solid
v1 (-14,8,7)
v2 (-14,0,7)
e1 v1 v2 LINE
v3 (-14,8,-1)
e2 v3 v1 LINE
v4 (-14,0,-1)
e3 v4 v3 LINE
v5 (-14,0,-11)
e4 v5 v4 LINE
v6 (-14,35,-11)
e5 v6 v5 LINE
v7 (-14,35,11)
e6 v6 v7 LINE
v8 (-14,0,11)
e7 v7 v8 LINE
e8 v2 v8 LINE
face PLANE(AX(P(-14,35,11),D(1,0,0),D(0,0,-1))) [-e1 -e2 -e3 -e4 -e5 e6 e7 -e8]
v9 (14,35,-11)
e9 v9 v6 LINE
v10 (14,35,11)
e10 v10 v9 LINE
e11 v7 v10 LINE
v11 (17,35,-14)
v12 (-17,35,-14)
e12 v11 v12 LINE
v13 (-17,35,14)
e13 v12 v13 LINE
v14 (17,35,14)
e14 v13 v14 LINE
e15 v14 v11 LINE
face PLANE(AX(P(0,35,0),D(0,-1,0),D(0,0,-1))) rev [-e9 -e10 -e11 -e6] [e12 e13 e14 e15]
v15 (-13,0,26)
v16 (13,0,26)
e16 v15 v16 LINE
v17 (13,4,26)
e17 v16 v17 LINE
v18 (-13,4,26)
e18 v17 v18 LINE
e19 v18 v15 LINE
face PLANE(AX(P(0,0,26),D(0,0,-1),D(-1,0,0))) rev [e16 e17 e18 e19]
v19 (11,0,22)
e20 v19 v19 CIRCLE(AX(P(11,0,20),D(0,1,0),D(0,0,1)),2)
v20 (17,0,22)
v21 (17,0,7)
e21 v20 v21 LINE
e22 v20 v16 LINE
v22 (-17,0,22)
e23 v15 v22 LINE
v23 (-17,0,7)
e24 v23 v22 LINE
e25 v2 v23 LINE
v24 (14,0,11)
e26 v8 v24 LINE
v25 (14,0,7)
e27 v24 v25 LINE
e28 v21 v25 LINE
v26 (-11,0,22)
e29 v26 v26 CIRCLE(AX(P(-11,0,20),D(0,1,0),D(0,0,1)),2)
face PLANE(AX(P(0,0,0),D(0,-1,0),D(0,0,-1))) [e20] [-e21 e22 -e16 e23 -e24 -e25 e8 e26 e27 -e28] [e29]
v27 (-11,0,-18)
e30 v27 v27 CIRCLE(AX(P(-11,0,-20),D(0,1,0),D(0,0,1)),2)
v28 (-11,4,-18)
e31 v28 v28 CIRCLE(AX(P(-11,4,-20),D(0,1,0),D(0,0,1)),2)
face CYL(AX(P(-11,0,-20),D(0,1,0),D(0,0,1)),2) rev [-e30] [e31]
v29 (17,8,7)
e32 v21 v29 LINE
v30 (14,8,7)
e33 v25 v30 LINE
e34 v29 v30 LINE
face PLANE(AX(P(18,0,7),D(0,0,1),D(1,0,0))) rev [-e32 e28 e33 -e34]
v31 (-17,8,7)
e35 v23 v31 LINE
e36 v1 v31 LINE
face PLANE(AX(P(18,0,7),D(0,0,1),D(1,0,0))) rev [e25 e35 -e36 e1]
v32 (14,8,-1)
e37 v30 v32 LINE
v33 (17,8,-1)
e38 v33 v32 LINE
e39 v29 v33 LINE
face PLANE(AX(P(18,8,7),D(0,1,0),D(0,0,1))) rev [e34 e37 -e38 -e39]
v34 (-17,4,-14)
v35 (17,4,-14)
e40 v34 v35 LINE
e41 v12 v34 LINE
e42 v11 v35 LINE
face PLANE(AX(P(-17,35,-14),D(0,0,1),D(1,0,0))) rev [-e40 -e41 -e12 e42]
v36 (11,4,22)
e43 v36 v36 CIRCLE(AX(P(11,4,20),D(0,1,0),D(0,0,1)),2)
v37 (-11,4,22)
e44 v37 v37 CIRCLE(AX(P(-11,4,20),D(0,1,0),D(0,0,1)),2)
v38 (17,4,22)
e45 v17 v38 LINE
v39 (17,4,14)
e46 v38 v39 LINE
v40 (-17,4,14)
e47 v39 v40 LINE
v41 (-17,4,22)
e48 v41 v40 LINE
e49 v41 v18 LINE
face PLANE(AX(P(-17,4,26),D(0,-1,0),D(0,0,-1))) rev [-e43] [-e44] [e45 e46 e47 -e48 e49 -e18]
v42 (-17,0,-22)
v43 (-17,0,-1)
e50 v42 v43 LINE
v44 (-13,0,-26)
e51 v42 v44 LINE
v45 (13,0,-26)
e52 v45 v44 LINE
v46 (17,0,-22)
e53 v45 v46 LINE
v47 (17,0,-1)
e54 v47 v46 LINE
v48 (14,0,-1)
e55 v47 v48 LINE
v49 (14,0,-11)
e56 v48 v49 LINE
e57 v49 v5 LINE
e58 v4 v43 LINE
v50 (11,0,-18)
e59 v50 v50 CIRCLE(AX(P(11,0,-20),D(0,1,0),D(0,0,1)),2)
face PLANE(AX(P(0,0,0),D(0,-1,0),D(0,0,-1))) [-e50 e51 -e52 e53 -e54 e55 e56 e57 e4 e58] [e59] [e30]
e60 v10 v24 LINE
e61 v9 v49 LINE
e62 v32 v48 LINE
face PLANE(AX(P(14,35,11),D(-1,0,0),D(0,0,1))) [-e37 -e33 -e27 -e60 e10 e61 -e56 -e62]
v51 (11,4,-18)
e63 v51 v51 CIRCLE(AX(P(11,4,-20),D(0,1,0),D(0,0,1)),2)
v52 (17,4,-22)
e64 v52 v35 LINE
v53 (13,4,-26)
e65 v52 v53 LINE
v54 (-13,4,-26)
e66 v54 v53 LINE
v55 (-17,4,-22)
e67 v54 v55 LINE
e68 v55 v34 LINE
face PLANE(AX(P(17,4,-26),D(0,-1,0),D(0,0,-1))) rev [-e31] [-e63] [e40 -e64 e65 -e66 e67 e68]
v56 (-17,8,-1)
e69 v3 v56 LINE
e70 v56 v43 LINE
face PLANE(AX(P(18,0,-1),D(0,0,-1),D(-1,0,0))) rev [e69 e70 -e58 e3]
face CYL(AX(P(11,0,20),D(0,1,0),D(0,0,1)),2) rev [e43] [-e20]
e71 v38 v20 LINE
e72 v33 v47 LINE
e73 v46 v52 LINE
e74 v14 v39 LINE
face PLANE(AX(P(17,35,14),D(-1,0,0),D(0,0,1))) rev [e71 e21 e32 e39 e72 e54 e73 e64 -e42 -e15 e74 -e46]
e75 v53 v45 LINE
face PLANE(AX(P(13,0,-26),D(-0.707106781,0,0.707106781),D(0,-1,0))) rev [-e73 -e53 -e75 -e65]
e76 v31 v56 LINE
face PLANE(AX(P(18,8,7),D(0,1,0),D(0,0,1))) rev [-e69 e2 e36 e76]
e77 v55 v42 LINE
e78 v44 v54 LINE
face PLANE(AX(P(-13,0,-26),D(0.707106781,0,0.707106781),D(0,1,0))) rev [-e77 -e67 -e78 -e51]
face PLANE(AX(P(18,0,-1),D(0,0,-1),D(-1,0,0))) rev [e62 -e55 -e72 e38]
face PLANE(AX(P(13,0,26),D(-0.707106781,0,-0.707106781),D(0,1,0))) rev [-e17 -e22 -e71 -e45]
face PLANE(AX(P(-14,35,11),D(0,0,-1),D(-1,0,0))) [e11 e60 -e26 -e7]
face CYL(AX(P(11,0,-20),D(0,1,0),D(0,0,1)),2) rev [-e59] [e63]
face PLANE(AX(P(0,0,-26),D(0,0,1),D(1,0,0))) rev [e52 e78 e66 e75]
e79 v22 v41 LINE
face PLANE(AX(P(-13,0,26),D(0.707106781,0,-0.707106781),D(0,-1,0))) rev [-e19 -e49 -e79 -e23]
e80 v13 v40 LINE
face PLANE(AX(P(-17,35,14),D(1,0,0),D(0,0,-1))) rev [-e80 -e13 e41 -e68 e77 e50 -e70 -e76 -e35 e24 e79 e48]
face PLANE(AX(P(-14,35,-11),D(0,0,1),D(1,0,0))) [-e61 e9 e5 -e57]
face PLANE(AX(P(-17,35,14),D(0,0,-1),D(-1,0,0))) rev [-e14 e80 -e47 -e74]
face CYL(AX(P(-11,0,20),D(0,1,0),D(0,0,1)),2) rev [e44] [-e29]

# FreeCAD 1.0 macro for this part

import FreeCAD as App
import Part
import Sketcher

V = App.Vector
Q = App.Units.Quantity


def edges_at(feature, points):
    """Names of the edges that pass closest to the given points."""
    edges = feature.Shape.Edges
    near = lambda p: min(range(len(edges)), key=lambda i: edges[i].distToShape(Part.Vertex(*p))[0])
    return sorted({f"Edge{near(p) + 1}" for p in points})

doc = App.newDocument("Part")
body = doc.addObject("PartDesign::Body", "Body")

# Sketch on XZ plane
sketch1 = body.newObject("Sketcher::SketchObject", "Sketch")
sketch1.AttachmentSupport = (doc.getObject("XZ_Plane"), [""])
sketch1.MapMode = "FlatFace"
sketch1.addGeometry(Part.LineSegment(V(-17, -14, 0), V(-17, 14, 0)), False)
sketch1.addGeometry(Part.LineSegment(V(-17, 14, 0), V(17, 14, 0)), False)
sketch1.addGeometry(Part.LineSegment(V(17, 14, 0), V(17, -14, 0)), False)
sketch1.addGeometry(Part.LineSegment(V(17, -14, 0), V(-17, -14, 0)), False)
sketch1.addGeometry(Part.LineSegment(V(14, 11, 0), V(-14, 11, 0)), False)
sketch1.addGeometry(Part.LineSegment(V(-14, 11, 0), V(-14, -11, 0)), False)
sketch1.addGeometry(Part.LineSegment(V(-14, -11, 0), V(14, -11, 0)), False)
sketch1.addGeometry(Part.LineSegment(V(14, -11, 0), V(14, 11, 0)), False)
sketch1.addConstraint(Sketcher.Constraint("Coincident", 0, 2, 1, 1))
sketch1.addConstraint(Sketcher.Constraint("Coincident", 1, 2, 2, 1))
sketch1.addConstraint(Sketcher.Constraint("Coincident", 2, 2, 3, 1))
sketch1.addConstraint(Sketcher.Constraint("Coincident", 3, 2, 0, 1))
sketch1.addConstraint(Sketcher.Constraint("Coincident", 4, 2, 5, 1))
sketch1.addConstraint(Sketcher.Constraint("Coincident", 5, 2, 6, 1))
sketch1.addConstraint(Sketcher.Constraint("Coincident", 6, 2, 7, 1))
sketch1.addConstraint(Sketcher.Constraint("Coincident", 7, 2, 4, 1))
sketch1.addConstraint(Sketcher.Constraint("Vertical", 0))
sketch1.addConstraint(Sketcher.Constraint("Horizontal", 1))
sketch1.addConstraint(Sketcher.Constraint("Vertical", 2))
sketch1.addConstraint(Sketcher.Constraint("Horizontal", 3))
sketch1.addConstraint(Sketcher.Constraint("Horizontal", 4))
sketch1.addConstraint(Sketcher.Constraint("Vertical", 5))
sketch1.addConstraint(Sketcher.Constraint("Horizontal", 6))
sketch1.addConstraint(Sketcher.Constraint("Vertical", 7))
sketch1.addConstraint(Sketcher.Constraint("Symmetric", 0, 2, 2, 2, -1, 1))
sketch1.addConstraint(Sketcher.Constraint("Symmetric", 4, 2, 6, 2, -1, 1))
sketch1.addConstraint(Sketcher.Constraint("Equal", 6, 0))
sketch1.addConstraint(Sketcher.Constraint("DistanceX", 1, 1, 1, 2, Q("34 mm")))
sketch1.addConstraint(Sketcher.Constraint("DistanceX", 4, 2, 4, 1, Q("28 mm")))
sketch1.addConstraint(Sketcher.Constraint("DistanceY", 5, 2, 5, 1, Q("22 mm")))
pad1 = body.newObject("PartDesign::Pad", "Pad")
pad1.Profile = sketch1
pad1.Length = 35
pad1.Reversed = True

# Sketch on YZ plane
sketch2 = body.newObject("Sketcher::SketchObject", "Sketch001")
sketch2.AttachmentSupport = (doc.getObject("YZ_Plane"), [""])
sketch2.MapMode = "FlatFace"
sketch2.AttachmentOffset = App.Placement(V(0, 0, -17), App.Rotation())
sketch2.addGeometry(Part.LineSegment(V(8, -1, 0), V(0, -1, 0)), False)
sketch2.addGeometry(Part.LineSegment(V(0, -1, 0), V(0, 7, 0)), False)
sketch2.addGeometry(Part.LineSegment(V(0, 7, 0), V(8, 7, 0)), False)
sketch2.addGeometry(Part.LineSegment(V(8, 7, 0), V(8, -1, 0)), False)
sketch2.addConstraint(Sketcher.Constraint("Coincident", 0, 2, 1, 1))
sketch2.addConstraint(Sketcher.Constraint("Coincident", 1, 2, 2, 1))
sketch2.addConstraint(Sketcher.Constraint("Coincident", 2, 2, 3, 1))
sketch2.addConstraint(Sketcher.Constraint("Coincident", 3, 2, 0, 1))
sketch2.addConstraint(Sketcher.Constraint("Horizontal", 0))
sketch2.addConstraint(Sketcher.Constraint("Vertical", 1))
sketch2.addConstraint(Sketcher.Constraint("Horizontal", 2))
sketch2.addConstraint(Sketcher.Constraint("Vertical", 3))
sketch2.addConstraint(Sketcher.Constraint("PointOnObject", 0, 2, -2))
sketch2.addConstraint(Sketcher.Constraint("Equal", 2, 1))
sketch2.addConstraint(Sketcher.Constraint("DistanceX", 0, 2, 0, 1, Q("8 mm")))
sketch2.addConstraint(Sketcher.Constraint("DistanceY", 0, 2, -1, 1, Q("1 mm")))
pocket1 = body.newObject("PartDesign::Pocket", "Pocket")
pocket1.Profile = sketch2
pocket1.Length = 35
pocket1.Reversed = True

# Sketch on XY plane
sketch3 = body.newObject("Sketcher::SketchObject", "Sketch002")
sketch3.AttachmentSupport = (doc.getObject("XY_Plane"), [""])
sketch3.MapMode = "FlatFace"
sketch3.AttachmentOffset = App.Placement(V(0, 0, 14), App.Rotation())
sketch3.addGeometry(Part.LineSegment(V(-17, 4, 0), V(-17, 0, 0)), False)
sketch3.addGeometry(Part.LineSegment(V(-17, 0, 0), V(17, 0, 0)), False)
sketch3.addGeometry(Part.LineSegment(V(17, 0, 0), V(17, 4, 0)), False)
sketch3.addGeometry(Part.LineSegment(V(17, 4, 0), V(-17, 4, 0)), False)
sketch3.addConstraint(Sketcher.Constraint("Coincident", 0, 2, 1, 1))
sketch3.addConstraint(Sketcher.Constraint("Coincident", 1, 2, 2, 1))
sketch3.addConstraint(Sketcher.Constraint("Coincident", 2, 2, 3, 1))
sketch3.addConstraint(Sketcher.Constraint("Coincident", 3, 2, 0, 1))
sketch3.addConstraint(Sketcher.Constraint("Vertical", 0))
sketch3.addConstraint(Sketcher.Constraint("Horizontal", 1))
sketch3.addConstraint(Sketcher.Constraint("Vertical", 2))
sketch3.addConstraint(Sketcher.Constraint("Horizontal", 3))
sketch3.addConstraint(Sketcher.Constraint("Symmetric", 0, 2, 1, 2, -1, 1))
sketch3.addConstraint(Sketcher.Constraint("DistanceX", 1, 1, 1, 2, Q("34 mm")))
sketch3.addConstraint(Sketcher.Constraint("DistanceY", 0, 2, 0, 1, Q("4 mm")))
pad2 = body.newObject("PartDesign::Pad", "Pad001")
pad2.Profile = sketch3
pad2.Length = 12

# Sketch on XY plane
sketch4 = body.newObject("Sketcher::SketchObject", "Sketch003")
sketch4.AttachmentSupport = (doc.getObject("XY_Plane"), [""])
sketch4.MapMode = "FlatFace"
sketch4.AttachmentOffset = App.Placement(V(0, 0, -14), App.Rotation())
sketch4.addGeometry(Part.LineSegment(V(17, 4, 0), V(17, 0, 0)), False)
sketch4.addGeometry(Part.LineSegment(V(17, 0, 0), V(-17, 0, 0)), False)
sketch4.addGeometry(Part.LineSegment(V(-17, 0, 0), V(-17, 4, 0)), False)
sketch4.addGeometry(Part.LineSegment(V(-17, 4, 0), V(17, 4, 0)), False)
sketch4.addConstraint(Sketcher.Constraint("Coincident", 0, 2, 1, 1))
sketch4.addConstraint(Sketcher.Constraint("Coincident", 1, 2, 2, 1))
sketch4.addConstraint(Sketcher.Constraint("Coincident", 2, 2, 3, 1))
sketch4.addConstraint(Sketcher.Constraint("Coincident", 3, 2, 0, 1))
sketch4.addConstraint(Sketcher.Constraint("Vertical", 0))
sketch4.addConstraint(Sketcher.Constraint("Horizontal", 1))
sketch4.addConstraint(Sketcher.Constraint("Vertical", 2))
sketch4.addConstraint(Sketcher.Constraint("Horizontal", 3))
sketch4.addConstraint(Sketcher.Constraint("Symmetric", 0, 2, 1, 2, -1, 1))
sketch4.addConstraint(Sketcher.Constraint("DistanceX", 1, 2, 1, 1, Q("34 mm")))
sketch4.addConstraint(Sketcher.Constraint("DistanceY", 0, 2, 0, 1, Q("4 mm")))
pad3 = body.newObject("PartDesign::Pad", "Pad002")
pad3.Profile = sketch4
pad3.Length = 12
pad3.Reversed = True
doc.recompute()

chamfer = body.newObject("PartDesign::Chamfer", "Chamfer")
chamfer.Base = (pad3, edges_at(pad3, [
    (-17, 2, 26),
    (17, 2, 26),
    (17, 2, -26),
    (-17, 2, -26),
]))
chamfer.Size = 4

# Sketch on XZ plane
sketch5 = body.newObject("Sketcher::SketchObject", "Sketch004")
sketch5.AttachmentSupport = (doc.getObject("XZ_Plane"), [""])
sketch5.MapMode = "FlatFace"
sketch5.AttachmentOffset = App.Placement(V(0, 0, -4), App.Rotation())
sketch5.addGeometry(Part.Circle(V(-11, 20, 0), V(0, 0, 1), 2), False)
sketch5.addGeometry(Part.Circle(V(11, 20, 0), V(0, 0, 1), 2), False)
sketch5.addGeometry(Part.Circle(V(-11, -20, 0), V(0, 0, 1), 2), False)
sketch5.addGeometry(Part.Circle(V(11, -20, 0), V(0, 0, 1), 2), False)
sketch5.addConstraint(Sketcher.Constraint("Equal", 0, 1))
sketch5.addConstraint(Sketcher.Constraint("Equal", 1, 2))
sketch5.addConstraint(Sketcher.Constraint("Equal", 2, 3))
sketch5.addConstraint(Sketcher.Constraint("Symmetric", 1, 3, 2, 3, -1, 1))
sketch5.addConstraint(Sketcher.Constraint("Symmetric", 0, 3, 3, 3, -1, 1))
sketch5.addConstraint(Sketcher.Constraint("Symmetric", 0, 3, 1, 3, -2))
sketch5.addConstraint(Sketcher.Constraint("Diameter", 0, Q("4 mm")))
sketch5.addConstraint(Sketcher.Constraint("DistanceX", 0, 3, -1, 1, Q("11 mm")))
sketch5.addConstraint(Sketcher.Constraint("DistanceY", -1, 1, 0, 3, Q("20 mm")))
pocket2 = body.newObject("PartDesign::Pocket", "Pocket001")
pocket2.Profile = sketch5
pocket2.Length = 4
pocket2.Reversed = True

doc.recompute()
